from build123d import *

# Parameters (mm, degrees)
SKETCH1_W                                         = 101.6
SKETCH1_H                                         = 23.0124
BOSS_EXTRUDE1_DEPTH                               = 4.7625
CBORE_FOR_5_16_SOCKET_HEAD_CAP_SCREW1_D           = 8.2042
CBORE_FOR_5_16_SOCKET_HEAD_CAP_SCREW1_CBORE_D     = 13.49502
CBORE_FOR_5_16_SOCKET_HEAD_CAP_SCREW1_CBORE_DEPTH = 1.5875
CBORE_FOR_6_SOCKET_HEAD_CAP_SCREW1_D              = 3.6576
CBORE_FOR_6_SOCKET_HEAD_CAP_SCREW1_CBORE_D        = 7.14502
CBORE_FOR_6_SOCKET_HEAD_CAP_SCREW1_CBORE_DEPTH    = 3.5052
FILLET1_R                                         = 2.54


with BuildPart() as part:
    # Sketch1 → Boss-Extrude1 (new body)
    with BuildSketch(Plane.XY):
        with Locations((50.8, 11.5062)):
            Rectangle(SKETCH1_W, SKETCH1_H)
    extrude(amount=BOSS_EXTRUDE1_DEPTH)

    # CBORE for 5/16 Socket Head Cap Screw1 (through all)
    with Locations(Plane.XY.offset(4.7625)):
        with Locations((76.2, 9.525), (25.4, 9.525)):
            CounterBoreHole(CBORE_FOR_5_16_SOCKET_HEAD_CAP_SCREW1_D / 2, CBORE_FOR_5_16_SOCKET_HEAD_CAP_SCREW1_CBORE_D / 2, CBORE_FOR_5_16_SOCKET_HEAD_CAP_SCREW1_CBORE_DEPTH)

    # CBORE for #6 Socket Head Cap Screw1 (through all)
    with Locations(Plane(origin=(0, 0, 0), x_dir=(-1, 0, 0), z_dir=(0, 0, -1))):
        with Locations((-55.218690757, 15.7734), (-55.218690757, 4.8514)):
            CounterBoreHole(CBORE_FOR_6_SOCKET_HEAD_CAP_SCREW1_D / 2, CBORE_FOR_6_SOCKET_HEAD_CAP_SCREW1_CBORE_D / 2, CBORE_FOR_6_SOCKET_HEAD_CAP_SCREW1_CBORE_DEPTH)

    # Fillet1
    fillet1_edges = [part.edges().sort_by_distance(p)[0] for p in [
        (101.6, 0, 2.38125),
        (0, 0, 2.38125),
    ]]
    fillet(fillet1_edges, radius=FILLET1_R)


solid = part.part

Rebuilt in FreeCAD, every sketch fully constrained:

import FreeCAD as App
import Part
import Sketcher
Q = App.Units.Quantity


def edges_at(feature, points):
    """Names of the edges that pass closest to the given points."""
    edges = feature.Shape.Edges
    near = lambda p: min(range(len(edges)), key=lambda i: edges[i].distToShape(Part.Vertex(*p))[0])
    return sorted({f"Edge{near(p) + 1}" for p in points})


def add_polygon(sketch, points):
    """Adds a closed chain of lines whose ends are joined by coincident constraints."""
    first, n = sketch.GeometryCount, len(points)
    for a, b in zip(points, points[1:] + points[:1]):
        sketch.addGeometry(Part.LineSegment(App.Vector(*a, 0), App.Vector(*b, 0)), False)
    for i in range(n):
        sketch.addConstraint(Sketcher.Constraint("Coincident", first + i, 2, first + (i + 1) % n, 1))

doc = App.newDocument("Part")
body = doc.addObject("PartDesign::Body", "Body")

# Sketch on XY plane
sketch1 = body.newObject("Sketcher::SketchObject", "Sketch")
sketch1.AttachmentSupport = (doc.getObject("XY_Plane"), [""])
sketch1.MapMode = "FlatFace"
add_polygon(sketch1, [(0, 23), (0, 0), (102, 0), (102, 23)])  # lines 0-3
sketch1.addConstraint([
    Sketcher.Constraint("Vertical", 0),
    Sketcher.Constraint("Horizontal", 1),
    Sketcher.Constraint("Vertical", 2),
    Sketcher.Constraint("Horizontal", 3),
    Sketcher.Constraint("Coincident", 0, 2, -1, 1),
    Sketcher.Constraint("DistanceX", 1, 1, 1, 2, Q("4 in")),
    Sketcher.Constraint("DistanceY", 0, 2, 0, 1, Q("0.906 in")),
])
pad1 = body.newObject("PartDesign::Pad", "Pad")
pad1.Profile = sketch1
pad1.Length = Q("0.1875 in")

# Sketch on XY plane
sketch2 = body.newObject("Sketcher::SketchObject", "Sketch001")
sketch2.AttachmentSupport = (doc.getObject("XY_Plane"), [""])
sketch2.MapMode = "FlatFace"
sketch2.AttachmentOffset = App.Placement(App.Vector(0, 0, 0.1875 * 25.4), App.Rotation())
sketch2.addGeometry([
    Part.Circle(App.Vector(76.2, 9.5, 0), App.Vector(0, 0, 1), 4.1),
    Part.Circle(App.Vector(25.4, 9.5, 0), App.Vector(0, 0, 1), 4.1),
], False)
sketch2.addConstraint([
    Sketcher.Constraint("Equal", 0, 1),
    Sketcher.Constraint("Horizontal", 0, 3, 1, 3),
    Sketcher.Constraint("Diameter", 0, Q("0.323 in")),
    Sketcher.Constraint("DistanceX", -1, 1, 0, 3, Q("3 in")),
    Sketcher.Constraint("DistanceX", -1, 1, 1, 3, Q("1 in")),
    Sketcher.Constraint("DistanceY", -1, 1, 0, 3, Q("0.375 in")),
])
doc.recompute()
hole = body.newObject("PartDesign::Hole", "Hole")
hole.Profile = sketch2
hole.ThreadType = "None"
hole.Diameter = Q("0.323 in")
hole.DepthType = "ThroughAll"
hole.HoleCutType = "Counterbore"
hole.HoleCutDiameter = Q("0.5313 in")
hole.HoleCutDepth = Q("0.0625 in")

# Sketch on XY plane
sketch3 = body.newObject("Sketcher::SketchObject", "Sketch002")
sketch3.AttachmentSupport = (doc.getObject("XY_Plane"), [""])
sketch3.MapMode = "FlatFace"
sketch3.addGeometry([
    Part.Circle(App.Vector(55.2, 15.8, 0), App.Vector(0, 0, 1), 1.8),
    Part.Circle(App.Vector(55.2, 4.9, 0), App.Vector(0, 0, 1), 1.8),
], False)
sketch3.addConstraint([
    Sketcher.Constraint("Equal", 0, 1),
    Sketcher.Constraint("Vertical", 0, 3, 1, 3),
    Sketcher.Constraint("Diameter", 0, Q("0.144 in")),
    Sketcher.Constraint("DistanceY", 1, 3, 0, 3, Q("0.43 in")),
    Sketcher.Constraint("DistanceY", -1, 1, 0, 3, Q("0.621 in")),
    Sketcher.Constraint("DistanceX", -1, 1, 0, 3, Q("55.218691 mm")),
])
doc.recompute()
hole2 = body.newObject("PartDesign::Hole", "Hole001")
hole2.Profile = sketch3
hole2.ThreadType = "None"
hole2.Diameter = Q("0.144 in")
hole2.DepthType = "ThroughAll"
hole2.HoleCutType = "Counterbore"
hole2.HoleCutDiameter = Q("0.2813 in")
hole2.HoleCutDepth = Q("0.138 in")
hole2.Reversed = True
doc.recompute()

fillet = body.newObject("PartDesign::Fillet", "Fillet")
fillet.Base = (hole2, edges_at(hole2, [(101.6, 0, 2.381), (0, 0, 2.381)]))
fillet.Radius = Q("0.1 in")

doc.recompute()
